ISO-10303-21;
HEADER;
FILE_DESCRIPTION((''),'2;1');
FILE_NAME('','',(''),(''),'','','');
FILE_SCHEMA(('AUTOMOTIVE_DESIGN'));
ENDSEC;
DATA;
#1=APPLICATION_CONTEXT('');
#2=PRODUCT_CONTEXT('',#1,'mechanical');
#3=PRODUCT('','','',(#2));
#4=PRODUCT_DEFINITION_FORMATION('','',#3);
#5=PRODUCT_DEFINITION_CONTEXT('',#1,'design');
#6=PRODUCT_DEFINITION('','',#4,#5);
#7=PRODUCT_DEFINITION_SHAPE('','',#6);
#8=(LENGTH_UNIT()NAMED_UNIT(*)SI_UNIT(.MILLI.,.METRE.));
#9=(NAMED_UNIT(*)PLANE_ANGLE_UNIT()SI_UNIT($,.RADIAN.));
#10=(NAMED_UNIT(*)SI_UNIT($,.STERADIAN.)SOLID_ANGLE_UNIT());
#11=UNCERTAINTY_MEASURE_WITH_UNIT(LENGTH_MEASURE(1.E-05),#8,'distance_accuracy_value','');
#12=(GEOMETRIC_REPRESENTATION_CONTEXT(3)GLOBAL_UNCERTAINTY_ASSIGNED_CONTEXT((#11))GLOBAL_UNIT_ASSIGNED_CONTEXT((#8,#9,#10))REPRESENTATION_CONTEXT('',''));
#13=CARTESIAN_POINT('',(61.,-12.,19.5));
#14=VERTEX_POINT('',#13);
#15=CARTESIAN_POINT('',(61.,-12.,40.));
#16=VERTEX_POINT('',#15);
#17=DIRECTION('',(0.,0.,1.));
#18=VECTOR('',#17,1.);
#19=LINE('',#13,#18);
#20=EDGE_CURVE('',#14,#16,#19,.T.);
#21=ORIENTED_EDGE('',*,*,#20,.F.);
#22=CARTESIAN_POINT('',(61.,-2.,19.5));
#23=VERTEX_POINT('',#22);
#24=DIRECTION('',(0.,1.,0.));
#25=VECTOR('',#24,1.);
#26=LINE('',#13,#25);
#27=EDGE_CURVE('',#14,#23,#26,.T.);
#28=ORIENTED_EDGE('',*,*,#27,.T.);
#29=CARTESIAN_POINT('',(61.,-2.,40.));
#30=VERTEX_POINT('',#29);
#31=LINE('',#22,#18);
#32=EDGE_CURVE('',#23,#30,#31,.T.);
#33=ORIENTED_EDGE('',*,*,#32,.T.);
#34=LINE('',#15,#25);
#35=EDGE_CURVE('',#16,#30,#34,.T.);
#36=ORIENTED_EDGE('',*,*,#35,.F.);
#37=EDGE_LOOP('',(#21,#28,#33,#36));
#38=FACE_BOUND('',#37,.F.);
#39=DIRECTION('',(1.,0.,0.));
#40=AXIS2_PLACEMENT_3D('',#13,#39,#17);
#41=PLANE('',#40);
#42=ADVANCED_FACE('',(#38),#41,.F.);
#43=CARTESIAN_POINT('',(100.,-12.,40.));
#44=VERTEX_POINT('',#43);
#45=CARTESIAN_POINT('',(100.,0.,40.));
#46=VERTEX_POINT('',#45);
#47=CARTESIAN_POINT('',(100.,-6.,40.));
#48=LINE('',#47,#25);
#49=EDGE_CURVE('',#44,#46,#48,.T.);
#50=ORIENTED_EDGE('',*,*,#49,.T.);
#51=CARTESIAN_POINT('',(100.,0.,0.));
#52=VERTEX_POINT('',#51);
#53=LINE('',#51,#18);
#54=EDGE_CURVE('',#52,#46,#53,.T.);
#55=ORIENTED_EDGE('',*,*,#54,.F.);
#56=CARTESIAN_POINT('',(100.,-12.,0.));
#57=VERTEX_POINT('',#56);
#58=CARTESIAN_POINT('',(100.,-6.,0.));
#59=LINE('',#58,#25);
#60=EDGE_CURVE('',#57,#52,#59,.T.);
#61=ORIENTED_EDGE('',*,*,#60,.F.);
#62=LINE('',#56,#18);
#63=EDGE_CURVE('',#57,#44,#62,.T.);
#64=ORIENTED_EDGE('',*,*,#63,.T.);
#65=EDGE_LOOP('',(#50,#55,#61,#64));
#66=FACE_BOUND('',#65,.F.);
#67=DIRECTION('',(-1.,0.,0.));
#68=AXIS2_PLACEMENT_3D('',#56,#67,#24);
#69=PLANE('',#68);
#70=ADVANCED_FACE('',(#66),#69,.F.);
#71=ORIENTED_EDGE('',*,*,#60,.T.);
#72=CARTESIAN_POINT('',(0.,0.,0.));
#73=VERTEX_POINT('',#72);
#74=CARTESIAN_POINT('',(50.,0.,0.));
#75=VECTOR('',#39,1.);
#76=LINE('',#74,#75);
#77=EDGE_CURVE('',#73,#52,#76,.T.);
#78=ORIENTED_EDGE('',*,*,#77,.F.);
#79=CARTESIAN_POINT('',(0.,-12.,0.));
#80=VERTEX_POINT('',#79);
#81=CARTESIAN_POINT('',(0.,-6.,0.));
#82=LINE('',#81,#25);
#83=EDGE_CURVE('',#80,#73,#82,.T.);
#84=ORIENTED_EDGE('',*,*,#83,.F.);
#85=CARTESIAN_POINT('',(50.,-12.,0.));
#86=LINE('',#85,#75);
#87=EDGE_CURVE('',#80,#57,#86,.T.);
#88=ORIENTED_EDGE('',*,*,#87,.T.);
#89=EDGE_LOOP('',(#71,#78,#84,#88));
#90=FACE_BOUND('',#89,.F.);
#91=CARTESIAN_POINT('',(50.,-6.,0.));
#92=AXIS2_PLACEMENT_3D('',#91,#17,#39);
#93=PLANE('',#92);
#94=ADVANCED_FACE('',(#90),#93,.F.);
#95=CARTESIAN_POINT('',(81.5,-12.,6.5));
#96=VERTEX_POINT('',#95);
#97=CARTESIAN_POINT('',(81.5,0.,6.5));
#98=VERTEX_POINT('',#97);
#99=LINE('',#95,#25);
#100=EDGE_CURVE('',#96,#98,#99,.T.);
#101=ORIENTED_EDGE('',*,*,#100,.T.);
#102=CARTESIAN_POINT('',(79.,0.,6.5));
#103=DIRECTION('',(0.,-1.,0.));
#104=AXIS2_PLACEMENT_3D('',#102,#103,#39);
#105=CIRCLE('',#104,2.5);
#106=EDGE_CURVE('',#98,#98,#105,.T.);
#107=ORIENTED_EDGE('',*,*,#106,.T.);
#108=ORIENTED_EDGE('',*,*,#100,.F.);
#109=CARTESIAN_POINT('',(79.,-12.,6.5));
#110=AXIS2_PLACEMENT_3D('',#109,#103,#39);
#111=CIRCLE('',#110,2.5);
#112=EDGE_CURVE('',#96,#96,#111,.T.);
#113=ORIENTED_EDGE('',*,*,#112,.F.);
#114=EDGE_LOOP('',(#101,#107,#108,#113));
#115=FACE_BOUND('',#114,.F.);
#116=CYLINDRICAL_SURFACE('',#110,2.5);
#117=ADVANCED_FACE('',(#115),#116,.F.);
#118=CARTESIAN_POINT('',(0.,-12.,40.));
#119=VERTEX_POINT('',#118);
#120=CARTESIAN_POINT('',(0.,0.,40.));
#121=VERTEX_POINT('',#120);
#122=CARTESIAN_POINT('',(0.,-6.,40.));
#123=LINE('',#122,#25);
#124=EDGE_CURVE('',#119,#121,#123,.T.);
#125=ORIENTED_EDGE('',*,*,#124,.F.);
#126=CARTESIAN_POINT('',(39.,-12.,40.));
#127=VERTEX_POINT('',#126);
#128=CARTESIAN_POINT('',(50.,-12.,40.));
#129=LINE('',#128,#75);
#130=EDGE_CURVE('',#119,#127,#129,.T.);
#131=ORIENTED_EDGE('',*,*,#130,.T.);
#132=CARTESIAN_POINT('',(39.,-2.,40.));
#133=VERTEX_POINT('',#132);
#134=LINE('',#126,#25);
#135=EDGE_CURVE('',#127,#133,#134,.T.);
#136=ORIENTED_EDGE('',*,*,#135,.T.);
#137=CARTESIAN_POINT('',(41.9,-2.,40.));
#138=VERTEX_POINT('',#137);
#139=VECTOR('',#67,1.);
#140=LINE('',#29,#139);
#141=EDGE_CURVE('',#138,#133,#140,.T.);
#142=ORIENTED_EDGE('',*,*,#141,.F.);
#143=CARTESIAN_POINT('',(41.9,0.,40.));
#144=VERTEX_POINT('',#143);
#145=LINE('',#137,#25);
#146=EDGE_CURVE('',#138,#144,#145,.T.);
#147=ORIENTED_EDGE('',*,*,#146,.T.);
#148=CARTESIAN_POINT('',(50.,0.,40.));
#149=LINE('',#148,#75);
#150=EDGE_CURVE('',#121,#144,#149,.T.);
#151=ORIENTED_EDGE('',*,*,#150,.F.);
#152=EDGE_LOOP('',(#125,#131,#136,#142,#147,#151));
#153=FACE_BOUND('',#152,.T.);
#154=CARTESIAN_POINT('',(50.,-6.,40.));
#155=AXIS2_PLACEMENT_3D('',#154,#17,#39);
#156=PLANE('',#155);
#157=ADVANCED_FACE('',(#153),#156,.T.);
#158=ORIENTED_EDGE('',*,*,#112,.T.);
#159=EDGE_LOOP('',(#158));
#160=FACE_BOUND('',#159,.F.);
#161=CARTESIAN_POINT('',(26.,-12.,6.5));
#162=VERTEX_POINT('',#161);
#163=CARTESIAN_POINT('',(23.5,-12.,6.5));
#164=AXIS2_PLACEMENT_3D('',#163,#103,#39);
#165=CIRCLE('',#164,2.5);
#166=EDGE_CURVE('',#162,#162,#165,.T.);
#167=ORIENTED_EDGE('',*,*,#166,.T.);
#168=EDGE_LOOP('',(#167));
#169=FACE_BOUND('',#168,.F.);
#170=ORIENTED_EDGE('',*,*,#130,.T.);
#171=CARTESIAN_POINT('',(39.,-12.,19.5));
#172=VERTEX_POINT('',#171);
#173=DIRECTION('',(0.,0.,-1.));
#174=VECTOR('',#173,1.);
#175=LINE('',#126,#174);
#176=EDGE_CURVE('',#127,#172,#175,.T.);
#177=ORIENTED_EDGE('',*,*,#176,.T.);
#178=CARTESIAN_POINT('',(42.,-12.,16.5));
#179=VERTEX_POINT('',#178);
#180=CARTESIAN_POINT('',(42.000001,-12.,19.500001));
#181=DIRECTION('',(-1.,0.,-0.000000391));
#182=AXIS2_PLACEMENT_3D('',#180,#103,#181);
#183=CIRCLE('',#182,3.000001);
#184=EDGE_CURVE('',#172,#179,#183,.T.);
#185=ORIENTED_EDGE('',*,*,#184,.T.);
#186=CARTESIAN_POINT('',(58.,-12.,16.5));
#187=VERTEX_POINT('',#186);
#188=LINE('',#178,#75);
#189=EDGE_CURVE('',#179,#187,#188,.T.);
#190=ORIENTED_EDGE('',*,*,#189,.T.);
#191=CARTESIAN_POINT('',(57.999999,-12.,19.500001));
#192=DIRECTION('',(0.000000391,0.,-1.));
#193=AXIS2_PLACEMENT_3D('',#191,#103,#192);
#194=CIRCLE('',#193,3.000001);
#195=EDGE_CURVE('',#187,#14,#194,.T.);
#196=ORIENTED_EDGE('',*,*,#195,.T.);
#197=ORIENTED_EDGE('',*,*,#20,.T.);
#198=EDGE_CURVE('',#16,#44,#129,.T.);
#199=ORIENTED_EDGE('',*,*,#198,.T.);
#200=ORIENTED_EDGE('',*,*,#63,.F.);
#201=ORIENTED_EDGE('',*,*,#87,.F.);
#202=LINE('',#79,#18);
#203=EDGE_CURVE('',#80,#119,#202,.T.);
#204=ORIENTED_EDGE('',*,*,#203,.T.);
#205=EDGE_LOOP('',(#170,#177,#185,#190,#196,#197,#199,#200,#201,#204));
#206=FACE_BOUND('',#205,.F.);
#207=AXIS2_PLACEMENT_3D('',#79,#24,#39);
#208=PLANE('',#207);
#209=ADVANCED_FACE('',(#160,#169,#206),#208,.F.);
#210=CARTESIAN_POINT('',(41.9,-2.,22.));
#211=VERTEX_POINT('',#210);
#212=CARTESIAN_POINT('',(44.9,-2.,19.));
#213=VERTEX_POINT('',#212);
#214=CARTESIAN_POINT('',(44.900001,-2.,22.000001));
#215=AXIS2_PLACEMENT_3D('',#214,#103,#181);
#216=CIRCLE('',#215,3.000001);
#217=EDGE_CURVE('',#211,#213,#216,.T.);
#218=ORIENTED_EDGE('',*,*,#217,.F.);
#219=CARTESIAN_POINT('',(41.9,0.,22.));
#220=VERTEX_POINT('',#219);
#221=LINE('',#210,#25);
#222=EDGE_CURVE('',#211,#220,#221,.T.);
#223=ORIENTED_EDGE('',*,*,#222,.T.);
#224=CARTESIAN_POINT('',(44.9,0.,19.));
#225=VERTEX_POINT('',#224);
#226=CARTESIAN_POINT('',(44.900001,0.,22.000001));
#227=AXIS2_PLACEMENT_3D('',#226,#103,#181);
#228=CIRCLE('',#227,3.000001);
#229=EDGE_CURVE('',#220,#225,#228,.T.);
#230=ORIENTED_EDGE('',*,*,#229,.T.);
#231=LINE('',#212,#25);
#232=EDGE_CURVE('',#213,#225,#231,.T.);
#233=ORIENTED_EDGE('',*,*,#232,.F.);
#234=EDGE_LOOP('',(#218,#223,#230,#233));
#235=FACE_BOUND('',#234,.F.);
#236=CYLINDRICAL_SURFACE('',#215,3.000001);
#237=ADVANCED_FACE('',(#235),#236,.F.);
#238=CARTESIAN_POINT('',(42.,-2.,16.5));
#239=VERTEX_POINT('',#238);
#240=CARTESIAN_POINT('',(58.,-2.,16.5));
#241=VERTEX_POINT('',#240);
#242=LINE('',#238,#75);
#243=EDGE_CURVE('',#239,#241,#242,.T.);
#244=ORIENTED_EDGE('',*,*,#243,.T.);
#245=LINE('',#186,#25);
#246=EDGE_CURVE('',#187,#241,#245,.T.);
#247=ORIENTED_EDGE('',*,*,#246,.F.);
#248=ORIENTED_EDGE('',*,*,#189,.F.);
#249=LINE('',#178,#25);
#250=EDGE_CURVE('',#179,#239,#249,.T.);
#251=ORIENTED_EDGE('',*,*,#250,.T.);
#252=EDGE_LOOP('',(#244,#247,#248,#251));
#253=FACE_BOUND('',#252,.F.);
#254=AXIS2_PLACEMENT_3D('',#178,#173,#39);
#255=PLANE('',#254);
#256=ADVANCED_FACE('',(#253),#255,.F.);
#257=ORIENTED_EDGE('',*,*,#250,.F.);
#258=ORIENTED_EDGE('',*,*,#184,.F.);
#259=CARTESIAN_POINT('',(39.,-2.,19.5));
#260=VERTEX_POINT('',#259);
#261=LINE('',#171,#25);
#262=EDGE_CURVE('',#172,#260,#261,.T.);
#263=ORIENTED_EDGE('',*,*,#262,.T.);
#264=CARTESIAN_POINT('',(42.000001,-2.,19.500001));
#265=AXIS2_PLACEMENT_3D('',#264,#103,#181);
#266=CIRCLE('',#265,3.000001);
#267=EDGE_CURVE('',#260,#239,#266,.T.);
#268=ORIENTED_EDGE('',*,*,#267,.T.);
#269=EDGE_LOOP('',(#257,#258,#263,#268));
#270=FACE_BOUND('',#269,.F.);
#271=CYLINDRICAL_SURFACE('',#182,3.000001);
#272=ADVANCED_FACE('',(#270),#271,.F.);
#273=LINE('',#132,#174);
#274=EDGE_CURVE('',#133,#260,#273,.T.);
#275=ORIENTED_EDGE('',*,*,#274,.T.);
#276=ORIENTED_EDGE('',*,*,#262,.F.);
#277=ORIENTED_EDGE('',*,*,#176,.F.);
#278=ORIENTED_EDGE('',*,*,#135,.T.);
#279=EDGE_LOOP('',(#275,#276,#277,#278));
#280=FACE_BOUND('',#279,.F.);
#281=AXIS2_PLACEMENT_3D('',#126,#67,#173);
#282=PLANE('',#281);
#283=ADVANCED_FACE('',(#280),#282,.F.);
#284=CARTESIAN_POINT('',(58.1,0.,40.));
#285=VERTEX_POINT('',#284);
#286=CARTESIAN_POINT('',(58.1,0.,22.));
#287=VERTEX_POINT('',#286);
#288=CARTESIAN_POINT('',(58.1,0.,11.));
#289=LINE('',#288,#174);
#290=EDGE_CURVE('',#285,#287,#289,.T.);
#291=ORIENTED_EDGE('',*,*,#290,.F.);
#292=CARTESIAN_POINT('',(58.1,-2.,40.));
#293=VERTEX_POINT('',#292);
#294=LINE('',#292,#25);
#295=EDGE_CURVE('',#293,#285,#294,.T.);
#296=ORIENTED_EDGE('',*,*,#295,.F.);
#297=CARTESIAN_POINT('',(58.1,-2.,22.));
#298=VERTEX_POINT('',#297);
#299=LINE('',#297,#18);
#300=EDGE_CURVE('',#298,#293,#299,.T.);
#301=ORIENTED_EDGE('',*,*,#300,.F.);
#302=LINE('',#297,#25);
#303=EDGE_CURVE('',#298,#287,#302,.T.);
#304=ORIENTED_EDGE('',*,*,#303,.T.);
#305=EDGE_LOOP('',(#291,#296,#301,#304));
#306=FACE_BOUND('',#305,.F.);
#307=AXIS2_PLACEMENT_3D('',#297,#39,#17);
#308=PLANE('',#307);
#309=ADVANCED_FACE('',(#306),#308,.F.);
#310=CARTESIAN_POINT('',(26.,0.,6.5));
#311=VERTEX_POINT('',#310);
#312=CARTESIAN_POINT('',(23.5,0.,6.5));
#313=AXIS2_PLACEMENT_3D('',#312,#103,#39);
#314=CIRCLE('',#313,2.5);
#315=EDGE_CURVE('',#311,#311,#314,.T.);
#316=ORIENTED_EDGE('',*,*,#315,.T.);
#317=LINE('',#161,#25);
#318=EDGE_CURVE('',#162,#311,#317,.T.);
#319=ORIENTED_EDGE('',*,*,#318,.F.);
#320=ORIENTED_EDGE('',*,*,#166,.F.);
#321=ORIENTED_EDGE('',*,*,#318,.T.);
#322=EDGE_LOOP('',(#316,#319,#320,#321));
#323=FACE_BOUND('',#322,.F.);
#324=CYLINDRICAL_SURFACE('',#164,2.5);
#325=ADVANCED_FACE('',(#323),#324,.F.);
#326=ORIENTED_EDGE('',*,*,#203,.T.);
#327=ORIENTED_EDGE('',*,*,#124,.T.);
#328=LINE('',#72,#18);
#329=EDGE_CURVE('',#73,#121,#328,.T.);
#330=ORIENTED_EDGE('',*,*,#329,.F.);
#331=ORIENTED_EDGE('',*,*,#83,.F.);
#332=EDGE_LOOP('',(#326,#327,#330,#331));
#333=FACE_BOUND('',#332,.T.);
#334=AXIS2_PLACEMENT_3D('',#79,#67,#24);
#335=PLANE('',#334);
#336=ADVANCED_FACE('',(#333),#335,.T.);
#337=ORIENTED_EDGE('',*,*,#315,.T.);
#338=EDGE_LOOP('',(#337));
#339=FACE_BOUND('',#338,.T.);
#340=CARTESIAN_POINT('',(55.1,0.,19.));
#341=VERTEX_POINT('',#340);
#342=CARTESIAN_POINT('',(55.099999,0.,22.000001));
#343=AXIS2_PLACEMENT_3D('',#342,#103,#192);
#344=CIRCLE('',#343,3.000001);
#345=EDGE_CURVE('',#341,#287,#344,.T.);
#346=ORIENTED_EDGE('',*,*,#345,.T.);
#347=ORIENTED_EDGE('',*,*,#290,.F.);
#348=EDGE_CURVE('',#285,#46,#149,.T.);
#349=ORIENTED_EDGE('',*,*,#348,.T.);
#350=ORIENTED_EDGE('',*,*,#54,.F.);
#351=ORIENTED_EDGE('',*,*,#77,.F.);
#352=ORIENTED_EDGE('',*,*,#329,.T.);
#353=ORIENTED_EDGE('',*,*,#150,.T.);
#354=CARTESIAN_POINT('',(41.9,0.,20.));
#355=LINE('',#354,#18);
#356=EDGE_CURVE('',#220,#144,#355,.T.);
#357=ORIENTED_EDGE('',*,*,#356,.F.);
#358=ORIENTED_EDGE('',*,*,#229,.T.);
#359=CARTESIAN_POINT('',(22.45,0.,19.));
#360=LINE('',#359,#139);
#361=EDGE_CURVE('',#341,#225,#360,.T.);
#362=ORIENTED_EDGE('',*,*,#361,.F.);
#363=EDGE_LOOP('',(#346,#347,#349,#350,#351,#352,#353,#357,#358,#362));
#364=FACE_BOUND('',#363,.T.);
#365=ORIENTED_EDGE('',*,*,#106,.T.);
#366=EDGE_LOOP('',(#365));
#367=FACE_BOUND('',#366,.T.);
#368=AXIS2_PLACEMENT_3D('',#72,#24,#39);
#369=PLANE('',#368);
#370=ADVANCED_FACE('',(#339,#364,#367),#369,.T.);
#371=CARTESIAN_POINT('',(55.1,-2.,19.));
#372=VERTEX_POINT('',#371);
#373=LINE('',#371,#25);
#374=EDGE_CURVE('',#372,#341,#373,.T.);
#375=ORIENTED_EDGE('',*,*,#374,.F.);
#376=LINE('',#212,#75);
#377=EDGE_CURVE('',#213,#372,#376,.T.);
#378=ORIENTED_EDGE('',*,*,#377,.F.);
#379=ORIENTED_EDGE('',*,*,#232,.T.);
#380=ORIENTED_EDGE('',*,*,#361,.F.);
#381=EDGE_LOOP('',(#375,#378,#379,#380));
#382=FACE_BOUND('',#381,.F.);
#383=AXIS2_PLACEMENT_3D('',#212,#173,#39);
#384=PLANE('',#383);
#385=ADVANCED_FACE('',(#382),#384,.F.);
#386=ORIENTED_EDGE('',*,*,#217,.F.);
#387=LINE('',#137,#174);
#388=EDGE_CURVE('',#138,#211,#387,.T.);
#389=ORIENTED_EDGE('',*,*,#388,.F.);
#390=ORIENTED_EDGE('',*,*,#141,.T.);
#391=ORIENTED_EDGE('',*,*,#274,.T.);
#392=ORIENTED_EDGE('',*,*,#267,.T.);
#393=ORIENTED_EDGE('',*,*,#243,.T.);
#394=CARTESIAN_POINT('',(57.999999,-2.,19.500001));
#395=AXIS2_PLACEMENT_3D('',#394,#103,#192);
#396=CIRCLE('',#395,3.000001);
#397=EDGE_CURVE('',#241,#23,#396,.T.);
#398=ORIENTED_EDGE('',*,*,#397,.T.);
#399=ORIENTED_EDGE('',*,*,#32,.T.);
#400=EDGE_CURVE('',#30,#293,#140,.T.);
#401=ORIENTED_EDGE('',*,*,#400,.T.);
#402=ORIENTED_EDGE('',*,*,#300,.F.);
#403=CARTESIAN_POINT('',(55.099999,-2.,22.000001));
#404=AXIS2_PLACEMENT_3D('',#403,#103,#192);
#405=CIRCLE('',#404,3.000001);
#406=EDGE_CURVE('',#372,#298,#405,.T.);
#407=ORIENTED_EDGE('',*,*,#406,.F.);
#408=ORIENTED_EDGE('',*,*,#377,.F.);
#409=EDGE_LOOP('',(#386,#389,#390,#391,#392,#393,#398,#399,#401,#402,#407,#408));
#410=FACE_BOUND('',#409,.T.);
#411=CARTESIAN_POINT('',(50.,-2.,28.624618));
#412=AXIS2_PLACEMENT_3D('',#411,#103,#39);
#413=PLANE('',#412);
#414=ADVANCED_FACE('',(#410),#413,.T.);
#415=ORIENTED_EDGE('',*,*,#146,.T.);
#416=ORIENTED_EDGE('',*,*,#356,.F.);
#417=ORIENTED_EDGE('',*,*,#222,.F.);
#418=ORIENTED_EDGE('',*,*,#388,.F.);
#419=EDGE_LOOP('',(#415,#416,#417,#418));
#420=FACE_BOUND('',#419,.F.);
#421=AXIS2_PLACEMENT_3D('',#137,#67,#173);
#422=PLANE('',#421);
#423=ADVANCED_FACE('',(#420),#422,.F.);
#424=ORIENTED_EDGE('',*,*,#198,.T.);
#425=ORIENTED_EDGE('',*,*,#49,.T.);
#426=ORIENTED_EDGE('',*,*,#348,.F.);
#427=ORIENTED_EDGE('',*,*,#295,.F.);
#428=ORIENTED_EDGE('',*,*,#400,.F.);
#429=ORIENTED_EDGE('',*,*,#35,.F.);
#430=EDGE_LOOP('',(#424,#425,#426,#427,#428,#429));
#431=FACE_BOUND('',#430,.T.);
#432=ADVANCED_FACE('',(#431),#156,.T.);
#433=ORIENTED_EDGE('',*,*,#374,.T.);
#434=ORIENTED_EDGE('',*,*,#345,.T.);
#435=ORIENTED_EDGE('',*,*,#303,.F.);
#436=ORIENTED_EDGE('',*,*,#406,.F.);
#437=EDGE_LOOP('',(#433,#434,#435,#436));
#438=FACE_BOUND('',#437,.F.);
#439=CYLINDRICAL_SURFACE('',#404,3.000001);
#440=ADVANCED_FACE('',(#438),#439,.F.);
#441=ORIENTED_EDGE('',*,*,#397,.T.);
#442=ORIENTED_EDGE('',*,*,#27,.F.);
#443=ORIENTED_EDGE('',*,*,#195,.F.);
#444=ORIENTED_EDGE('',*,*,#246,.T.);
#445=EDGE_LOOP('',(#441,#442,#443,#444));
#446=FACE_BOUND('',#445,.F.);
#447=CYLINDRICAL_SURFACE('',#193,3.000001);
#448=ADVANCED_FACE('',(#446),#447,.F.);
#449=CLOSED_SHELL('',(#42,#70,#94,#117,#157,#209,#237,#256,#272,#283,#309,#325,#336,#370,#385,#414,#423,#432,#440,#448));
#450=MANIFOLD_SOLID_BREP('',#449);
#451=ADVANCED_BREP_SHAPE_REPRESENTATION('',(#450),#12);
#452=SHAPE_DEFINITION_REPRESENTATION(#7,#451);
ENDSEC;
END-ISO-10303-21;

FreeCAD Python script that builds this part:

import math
import FreeCAD as App
import Part
import Sketcher
from FreeCAD import Vector
Q = App.Units.Quantity


def add_polygon(sketch, points):
    """Adds a closed chain of lines whose ends are joined by coincident constraints."""
    first, n = sketch.GeometryCount, len(points)
    for a, b in zip(points, points[1:] + points[:1]):
        sketch.addGeometry(Part.LineSegment(App.Vector(*a, 0), App.Vector(*b, 0)), False)
    for i in range(n):
        sketch.addConstraint(Sketcher.Constraint("Coincident", first + i, 2, first + (i + 1) % n, 1))

doc = App.newDocument("Part")
body = doc.addObject("PartDesign::Body", "Body")

sketch1 = body.newObject("Sketcher::SketchObject", "Sketch")
sketch1.AttachmentSupport = (doc.getObject("XY_Plane"), [""])
sketch1.MapMode = "FlatFace"
add_polygon(sketch1, [(0, 0), (0, -12), (100, -12), (100, 0)])
sketch1.addConstraint([
    Sketcher.Constraint("Vertical", 0),
    Sketcher.Constraint("Horizontal", 1),
    Sketcher.Constraint("Vertical", 2),
    Sketcher.Constraint("Horizontal", 3),
    Sketcher.Constraint("Coincident", 3, 2, -1, 1),
    Sketcher.Constraint("DistanceX", 1, 1, 1, 2, Q("100 mm")),
    Sketcher.Constraint("DistanceY", 0, 2, 0, 1, Q("12 mm")),
])
pad1 = body.newObject("PartDesign::Pad", "Pad")
pad1.Profile = sketch1
pad1.Length = 40

sketch2 = body.newObject("Sketcher::SketchObject", "Sketch001")
sketch2.AttachmentSupport = (doc.getObject("XZ_Plane"), [""])
sketch2.MapMode = "FlatFace"
sketch2.AttachmentOffset = App.Placement(Vector(0, 0, 12), App.Rotation())
sketch2.addGeometry([
    Part.Circle(Vector(79, 6.5, 0), Vector(0, 0, 1), 2.5),
    Part.Circle(Vector(23.5, 6.5, 0), Vector(0, 0, 1), 2.5),
], False)
sketch2.addConstraint([
    Sketcher.Constraint("Equal", 0, 1),
    Sketcher.Constraint("Horizontal", 0, 3, 1, 3),
    Sketcher.Constraint("Diameter", 0, Q("5 mm")),
    Sketcher.Constraint("DistanceX", -1, 1, 0, 3, Q("79 mm")),
    Sketcher.Constraint("DistanceY", -1, 1, 0, 3, Q("6.5 mm")),
    Sketcher.Constraint("DistanceX", -1, 1, 1, 3, Q("23.5 mm")),
])
pocket1 = body.newObject("PartDesign::Pocket", "Pocket")
pocket1.Profile = sketch2
pocket1.Length = 25

sketch3 = body.newObject("Sketcher::SketchObject", "Sketch002")
sketch3.AttachmentSupport = (doc.getObject("XZ_Plane"), [""])
sketch3.MapMode = "FlatFace"
sketch3.AttachmentOffset = App.Placement(Vector(0, 0, 12), App.Rotation())
sketch3.addGeometry([
    Part.LineSegment(Vector(61, 40, 0), Vector(39, 40, 0)),
    Part.LineSegment(Vector(39, 40, 0), Vector(39, 19.5, 0)),
    Part.ArcOfCircle(Part.Circle(Vector(42, 19.5, 0), Vector(0, 0, 1), 3), math.radians(-180), math.radians(-90)),
    Part.LineSegment(Vector(42, 16.5, 0), Vector(58, 16.5, 0)),
    Part.ArcOfCircle(Part.Circle(Vector(58, 19.5, 0), Vector(0, 0, 1), 3), math.radians(-90), math.radians(0)),
    Part.LineSegment(Vector(61, 19.5, 0), Vector(61, 40, 0)),
], False)
sketch3.addConstraint([
    Sketcher.Constraint("Coincident", 0, 2, 1, 1),
    Sketcher.Constraint("Tangent", 1, 2, 2, 1),
    Sketcher.Constraint("Tangent", 2, 2, 3, 1),
    Sketcher.Constraint("Tangent", 3, 2, 4, 1),
    Sketcher.Constraint("Tangent", 4, 2, 5, 1),
    Sketcher.Constraint("Coincident", 5, 2, 0, 1),
    Sketcher.Constraint("Horizontal", 0),
    Sketcher.Constraint("Vertical", 1),
    Sketcher.Constraint("Horizontal", 3),
    Sketcher.Constraint("Vertical", 5),
    Sketcher.Constraint("Equal", 2, 4),
    Sketcher.Constraint("Radius", 2, Q("3.000001 mm")),
    Sketcher.Constraint("DistanceX", 0, 2, 0, 1, Q("22 mm")),
    Sketcher.Constraint("DistanceY", 1, 2, 1, 1, Q("20.5 mm")),
    Sketcher.Constraint("DistanceX", -1, 1, 2, 3, Q("42.000001 mm")),
    Sketcher.Constraint("DistanceY", -1, 1, 0, 2, Q("40 mm")),
])
pocket2 = body.newObject("PartDesign::Pocket", "Pocket001")
pocket2.Profile = sketch3
pocket2.Length = 10

sketch4 = body.newObject("Sketcher::SketchObject", "Sketch003")
sketch4.AttachmentSupport = (doc.getObject("XZ_Plane"), [""])
sketch4.MapMode = "FlatFace"
sketch4.AttachmentOffset = App.Placement(Vector(0, 0, 2), App.Rotation())
sketch4.addGeometry([
    Part.LineSegment(Vector(58.1, 40, 0), Vector(41.9, 40, 0)),
    Part.LineSegment(Vector(41.9, 40, 0), Vector(41.9, 22, 0)),
    Part.ArcOfCircle(Part.Circle(Vector(44.9, 22, 0), Vector(0, 0, 1), 3), math.radians(-180), math.radians(-90)),
    Part.LineSegment(Vector(44.9, 19, 0), Vector(55.1, 19, 0)),
    Part.ArcOfCircle(Part.Circle(Vector(55.1, 22, 0), Vector(0, 0, 1), 3), math.radians(-90), math.radians(0)),
    Part.LineSegment(Vector(58.1, 22, 0), Vector(58.1, 40, 0)),
], False)
sketch4.addConstraint([
    Sketcher.Constraint("Coincident", 0, 2, 1, 1),
    Sketcher.Constraint("Tangent", 1, 2, 2, 1),
    Sketcher.Constraint("Tangent", 2, 2, 3, 1),
    Sketcher.Constraint("Tangent", 3, 2, 4, 1),
    Sketcher.Constraint("Tangent", 4, 2, 5, 1),
    Sketcher.Constraint("Coincident", 5, 2, 0, 1),
    Sketcher.Constraint("Horizontal", 0),
    Sketcher.Constraint("Vertical", 1),
    Sketcher.Constraint("Horizontal", 3),
    Sketcher.Constraint("Vertical", 5),
    Sketcher.Constraint("Equal", 2, 4),
    Sketcher.Constraint("Radius", 2, Q("3.000001 mm")),
    Sketcher.Constraint("DistanceY", 1, 2, 1, 1, Q("18 mm")),
    Sketcher.Constraint("DistanceX", 0, 2, 0, 1, Q("16.2 mm")),
    Sketcher.Constraint("DistanceY", -1, 1, 2, 3, Q("22.000001 mm")),
    Sketcher.Constraint("DistanceX", -1, 1, 2, 3, Q("44.900001 mm")),
])
pocket3 = body.newObject("PartDesign::Pocket", "Pocket002")
pocket3.Profile = sketch4
pocket3.Length = 25

doc.recompute()
